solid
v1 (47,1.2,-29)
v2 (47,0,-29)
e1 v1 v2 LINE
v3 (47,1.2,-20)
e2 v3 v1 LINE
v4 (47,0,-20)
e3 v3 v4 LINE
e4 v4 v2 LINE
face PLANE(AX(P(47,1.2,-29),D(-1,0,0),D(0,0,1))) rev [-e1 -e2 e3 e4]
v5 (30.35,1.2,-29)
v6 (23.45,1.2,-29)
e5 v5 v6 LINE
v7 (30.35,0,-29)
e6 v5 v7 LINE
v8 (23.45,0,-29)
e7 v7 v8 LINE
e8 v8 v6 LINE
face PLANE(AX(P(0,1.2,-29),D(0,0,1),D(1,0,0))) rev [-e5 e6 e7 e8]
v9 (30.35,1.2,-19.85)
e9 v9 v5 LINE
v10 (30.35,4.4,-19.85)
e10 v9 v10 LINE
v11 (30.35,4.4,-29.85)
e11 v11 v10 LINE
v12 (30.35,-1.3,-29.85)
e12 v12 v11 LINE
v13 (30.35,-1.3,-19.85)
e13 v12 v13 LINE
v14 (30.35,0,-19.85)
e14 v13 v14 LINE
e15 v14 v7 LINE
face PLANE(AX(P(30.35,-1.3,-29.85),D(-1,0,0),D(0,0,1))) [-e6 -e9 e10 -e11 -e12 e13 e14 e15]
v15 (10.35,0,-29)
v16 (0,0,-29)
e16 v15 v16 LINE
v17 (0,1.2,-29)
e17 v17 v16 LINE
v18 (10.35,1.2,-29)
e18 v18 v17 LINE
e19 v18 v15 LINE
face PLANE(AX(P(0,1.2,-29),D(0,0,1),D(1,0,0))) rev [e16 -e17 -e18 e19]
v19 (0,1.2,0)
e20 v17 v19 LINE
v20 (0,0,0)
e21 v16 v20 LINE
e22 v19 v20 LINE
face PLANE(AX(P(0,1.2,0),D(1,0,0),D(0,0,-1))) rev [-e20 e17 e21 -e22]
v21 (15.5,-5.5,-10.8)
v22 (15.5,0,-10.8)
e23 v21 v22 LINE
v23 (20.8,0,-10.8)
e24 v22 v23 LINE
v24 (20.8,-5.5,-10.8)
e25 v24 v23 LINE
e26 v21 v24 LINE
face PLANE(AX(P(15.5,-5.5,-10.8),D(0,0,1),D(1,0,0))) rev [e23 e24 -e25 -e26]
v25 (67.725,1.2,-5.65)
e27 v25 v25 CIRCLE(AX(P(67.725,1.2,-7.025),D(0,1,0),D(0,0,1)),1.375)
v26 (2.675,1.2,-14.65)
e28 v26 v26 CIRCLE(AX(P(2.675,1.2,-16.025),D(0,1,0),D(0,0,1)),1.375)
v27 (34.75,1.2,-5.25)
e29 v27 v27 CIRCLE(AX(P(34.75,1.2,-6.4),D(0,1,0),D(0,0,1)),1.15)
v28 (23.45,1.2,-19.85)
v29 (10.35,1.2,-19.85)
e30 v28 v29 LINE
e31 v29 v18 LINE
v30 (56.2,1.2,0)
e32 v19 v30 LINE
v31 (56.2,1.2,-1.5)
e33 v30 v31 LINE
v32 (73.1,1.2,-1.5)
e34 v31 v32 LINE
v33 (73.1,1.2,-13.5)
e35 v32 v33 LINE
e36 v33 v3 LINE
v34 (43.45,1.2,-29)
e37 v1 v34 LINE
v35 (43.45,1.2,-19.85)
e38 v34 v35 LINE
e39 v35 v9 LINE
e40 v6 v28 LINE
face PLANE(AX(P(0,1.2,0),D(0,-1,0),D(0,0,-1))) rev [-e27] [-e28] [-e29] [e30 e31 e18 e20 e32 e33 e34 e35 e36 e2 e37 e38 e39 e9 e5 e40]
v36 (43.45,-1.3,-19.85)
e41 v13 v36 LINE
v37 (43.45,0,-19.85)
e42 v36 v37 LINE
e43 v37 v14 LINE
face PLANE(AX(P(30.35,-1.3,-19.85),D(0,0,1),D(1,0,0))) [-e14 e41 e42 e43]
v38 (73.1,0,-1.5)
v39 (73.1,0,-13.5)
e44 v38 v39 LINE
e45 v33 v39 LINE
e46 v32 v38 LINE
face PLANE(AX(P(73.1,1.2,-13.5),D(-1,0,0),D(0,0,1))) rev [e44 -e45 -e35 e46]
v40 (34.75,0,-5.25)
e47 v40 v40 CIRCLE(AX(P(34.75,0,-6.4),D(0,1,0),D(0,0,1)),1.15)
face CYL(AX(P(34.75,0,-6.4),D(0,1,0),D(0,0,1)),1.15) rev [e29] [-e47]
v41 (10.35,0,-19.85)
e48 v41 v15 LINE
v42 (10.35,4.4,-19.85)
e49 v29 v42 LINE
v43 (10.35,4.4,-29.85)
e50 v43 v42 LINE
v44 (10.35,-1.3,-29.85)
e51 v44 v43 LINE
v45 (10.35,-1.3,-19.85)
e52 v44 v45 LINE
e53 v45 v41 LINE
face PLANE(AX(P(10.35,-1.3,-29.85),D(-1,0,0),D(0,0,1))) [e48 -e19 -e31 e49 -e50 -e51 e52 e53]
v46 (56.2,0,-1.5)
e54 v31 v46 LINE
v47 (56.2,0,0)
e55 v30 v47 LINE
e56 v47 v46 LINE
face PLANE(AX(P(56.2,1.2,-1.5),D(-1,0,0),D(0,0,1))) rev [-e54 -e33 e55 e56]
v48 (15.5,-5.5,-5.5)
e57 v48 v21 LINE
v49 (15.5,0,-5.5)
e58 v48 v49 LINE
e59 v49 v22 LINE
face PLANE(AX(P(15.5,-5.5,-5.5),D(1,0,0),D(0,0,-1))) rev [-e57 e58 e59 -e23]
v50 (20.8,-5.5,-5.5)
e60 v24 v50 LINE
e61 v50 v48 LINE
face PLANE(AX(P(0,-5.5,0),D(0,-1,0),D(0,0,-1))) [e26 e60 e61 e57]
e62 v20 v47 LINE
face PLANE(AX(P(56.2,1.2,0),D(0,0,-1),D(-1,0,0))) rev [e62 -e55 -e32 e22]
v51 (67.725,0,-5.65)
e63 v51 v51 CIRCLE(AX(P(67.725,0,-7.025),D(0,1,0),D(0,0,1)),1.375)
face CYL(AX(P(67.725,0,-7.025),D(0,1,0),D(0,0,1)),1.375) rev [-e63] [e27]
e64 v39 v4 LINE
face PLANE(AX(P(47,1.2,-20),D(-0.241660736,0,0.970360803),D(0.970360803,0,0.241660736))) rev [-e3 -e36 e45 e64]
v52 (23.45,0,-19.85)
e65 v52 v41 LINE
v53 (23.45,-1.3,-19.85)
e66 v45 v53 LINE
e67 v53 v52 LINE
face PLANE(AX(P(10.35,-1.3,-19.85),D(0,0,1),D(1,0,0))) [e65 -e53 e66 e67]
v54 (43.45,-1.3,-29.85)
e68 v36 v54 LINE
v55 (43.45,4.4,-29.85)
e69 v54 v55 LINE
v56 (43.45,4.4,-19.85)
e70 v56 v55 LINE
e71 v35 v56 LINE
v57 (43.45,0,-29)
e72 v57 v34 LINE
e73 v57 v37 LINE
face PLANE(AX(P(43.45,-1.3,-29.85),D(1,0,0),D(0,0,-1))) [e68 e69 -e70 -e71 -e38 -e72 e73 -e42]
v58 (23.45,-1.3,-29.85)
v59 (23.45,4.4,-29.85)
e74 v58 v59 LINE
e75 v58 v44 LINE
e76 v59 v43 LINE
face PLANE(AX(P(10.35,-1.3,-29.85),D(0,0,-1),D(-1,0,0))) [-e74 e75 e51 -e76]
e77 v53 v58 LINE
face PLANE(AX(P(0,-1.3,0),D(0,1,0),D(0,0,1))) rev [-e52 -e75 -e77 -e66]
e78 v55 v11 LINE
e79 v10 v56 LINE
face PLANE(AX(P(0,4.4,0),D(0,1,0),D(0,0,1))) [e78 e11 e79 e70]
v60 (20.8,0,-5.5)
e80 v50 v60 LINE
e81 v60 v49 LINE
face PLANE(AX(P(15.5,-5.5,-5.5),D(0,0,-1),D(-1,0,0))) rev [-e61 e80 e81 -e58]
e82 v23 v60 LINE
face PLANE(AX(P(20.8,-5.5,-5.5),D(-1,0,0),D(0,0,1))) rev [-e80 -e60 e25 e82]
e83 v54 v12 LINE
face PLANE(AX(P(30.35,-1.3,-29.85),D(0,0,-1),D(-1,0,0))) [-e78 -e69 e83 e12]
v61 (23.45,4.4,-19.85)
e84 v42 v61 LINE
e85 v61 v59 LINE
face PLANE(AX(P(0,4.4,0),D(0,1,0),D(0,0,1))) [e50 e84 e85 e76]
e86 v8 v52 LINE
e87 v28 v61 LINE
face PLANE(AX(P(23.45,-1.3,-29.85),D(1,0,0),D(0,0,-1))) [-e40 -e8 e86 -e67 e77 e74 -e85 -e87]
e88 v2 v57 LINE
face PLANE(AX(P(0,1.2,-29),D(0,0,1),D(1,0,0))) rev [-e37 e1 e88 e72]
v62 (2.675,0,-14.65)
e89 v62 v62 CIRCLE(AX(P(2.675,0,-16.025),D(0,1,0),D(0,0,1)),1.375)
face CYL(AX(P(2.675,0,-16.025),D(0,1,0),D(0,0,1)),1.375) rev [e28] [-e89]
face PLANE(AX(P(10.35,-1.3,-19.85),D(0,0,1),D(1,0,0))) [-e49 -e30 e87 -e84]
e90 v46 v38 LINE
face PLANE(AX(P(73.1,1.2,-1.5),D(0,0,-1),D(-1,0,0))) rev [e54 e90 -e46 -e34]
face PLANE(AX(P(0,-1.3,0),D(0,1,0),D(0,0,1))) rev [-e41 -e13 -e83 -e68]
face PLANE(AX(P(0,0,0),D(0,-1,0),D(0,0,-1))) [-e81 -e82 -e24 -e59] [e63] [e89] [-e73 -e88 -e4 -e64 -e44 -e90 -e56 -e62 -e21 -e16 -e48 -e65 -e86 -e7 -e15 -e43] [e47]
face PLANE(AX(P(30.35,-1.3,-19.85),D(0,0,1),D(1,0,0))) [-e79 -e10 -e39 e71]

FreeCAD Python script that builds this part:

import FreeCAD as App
import Part
import Sketcher
from FreeCAD import Vector
Q = App.Units.Quantity

doc = App.newDocument("Part")
params = doc.addObject("Spreadsheet::Sheet", "Params")
for row, (alias, value) in enumerate([
    ("sketch1_width", "47 mm"),
    ("sketch1_height", "29 mm"),
    ("sketch1_height2", "12 mm"),
    ("sketch1_height3", "9 mm"),
    ("sketch1_width2", "56.2 mm"),
    ("pad1_length", "1.2 mm"),
    ("sketch2_diameter", "2.3 mm"),
    ("sketch2_diameter2", "2.75 mm"),
    ("sketch3_height", "10 mm"),
    ("sketch3_width", "13.1 mm"),
    ("pad2_length", "3.2 mm"),
    ("pad2_length2", "2.5 mm"),
    ("sketch4_width", "5.3 mm"),
    ("pad3_length", "5.5 mm"),
], start=1):
    params.set(f"A{row}", alias)
    params.set(f"B{row}", "=" + value)
    params.setAlias(f"B{row}", alias)

body = doc.addObject("PartDesign::Body", "Body")

# Sketch on XZ plane
sketch1 = body.newObject("Sketcher::SketchObject", "Sketch")
sketch1.AttachmentSupport = (doc.getObject("XZ_Plane"), [""])
sketch1.MapMode = "FlatFace"
sketch1.addGeometry(Part.LineSegment(Vector(0, -29, 0), Vector(0, 0, 0)), False)
sketch1.addGeometry(Part.LineSegment(Vector(0, 0, 0), Vector(56.2, 0, 0)), False)
sketch1.addGeometry(Part.LineSegment(Vector(56.2, 0, 0), Vector(56.2, -1.5, 0)), False)
sketch1.addGeometry(Part.LineSegment(Vector(56.2, -1.5, 0), Vector(73.1, -1.5, 0)), False)
sketch1.addGeometry(Part.LineSegment(Vector(73.1, -1.5, 0), Vector(73.1, -13.5, 0)), False)
sketch1.addGeometry(Part.LineSegment(Vector(73.1, -13.5, 0), Vector(47, -20, 0)), False)
sketch1.addGeometry(Part.LineSegment(Vector(47, -20, 0), Vector(47, -29, 0)), False)
sketch1.addGeometry(Part.LineSegment(Vector(47, -29, 0), Vector(0, -29, 0)), False)
sketch1.addConstraint(Sketcher.Constraint("Coincident", 0, 2, 1, 1))
sketch1.addConstraint(Sketcher.Constraint("Coincident", 1, 2, 2, 1))
sketch1.addConstraint(Sketcher.Constraint("Coincident", 2, 2, 3, 1))
sketch1.addConstraint(Sketcher.Constraint("Coincident", 3, 2, 4, 1))
sketch1.addConstraint(Sketcher.Constraint("Coincident", 4, 2, 5, 1))
sketch1.addConstraint(Sketcher.Constraint("Coincident", 5, 2, 6, 1))
sketch1.addConstraint(Sketcher.Constraint("Coincident", 6, 2, 7, 1))
sketch1.addConstraint(Sketcher.Constraint("Coincident", 7, 2, 0, 1))
sketch1.addConstraint(Sketcher.Constraint("Vertical", 0))
sketch1.addConstraint(Sketcher.Constraint("Horizontal", 1))
sketch1.addConstraint(Sketcher.Constraint("Vertical", 2))
sketch1.addConstraint(Sketcher.Constraint("Horizontal", 3))
sketch1.addConstraint(Sketcher.Constraint("Vertical", 4))
sketch1.addConstraint(Sketcher.Constraint("Vertical", 6))
sketch1.addConstraint(Sketcher.Constraint("Horizontal", 7))
sketch1.addConstraint(Sketcher.Constraint("Coincident", 0, 2, -1, 1))
sketch1.addConstraint(Sketcher.Constraint("DistanceX", 7, 2, 7, 1, Q("47 mm")))
sketch1.addConstraint(Sketcher.Constraint("DistanceY", 0, 1, 0, 2, Q("29 mm")))
sketch1.addConstraint(Sketcher.Constraint("DistanceY", 4, 2, 4, 1, Q("12 mm")))
sketch1.addConstraint(Sketcher.Constraint("DistanceY", 6, 2, 6, 1, Q("9 mm")))
sketch1.addConstraint(Sketcher.Constraint("DistanceX", 1, 1, 1, 2, Q("56.2 mm")))
sketch1.addConstraint(Sketcher.Constraint("DistanceX", 3, 1, 3, 2, Q("16.9 mm")))
sketch1.addConstraint(Sketcher.Constraint("DistanceY", 2, 2, 2, 1, Q("1.5 mm")))
sketch1.setExpression("Constraints[16]", "Params.sketch1_width")
sketch1.setExpression("Constraints[17]", "Params.sketch1_height")
sketch1.setExpression("Constraints[18]", "Params.sketch1_height2")
sketch1.setExpression("Constraints[19]", "Params.sketch1_height3")
sketch1.setExpression("Constraints[20]", "Params.sketch1_width2")
pad1 = body.newObject("PartDesign::Pad", "Pad")
pad1.Profile = sketch1
pad1.setExpression("Length", "Params.pad1_length")
pad1.Reversed = True

# Sketch on XZ plane
sketch2 = body.newObject("Sketcher::SketchObject", "Sketch001")
sketch2.AttachmentSupport = (doc.getObject("XZ_Plane"), [""])
sketch2.MapMode = "FlatFace"
sketch2.AttachmentOffset = App.Placement(Vector(0, 0, -1.2), App.Rotation())
sketch2.addGeometry(Part.Circle(Vector(2.7, -16, 0), Vector(0, 0, 1), 1.4), False)
sketch2.addGeometry(Part.Circle(Vector(67.7, -7, 0), Vector(0, 0, 1), 1.4), False)
sketch2.addGeometry(Part.Circle(Vector(34.8, -6.4, 0), Vector(0, 0, 1), 1.1), False)
sketch2.addConstraint(Sketcher.Constraint("Equal", 0, 1))
sketch2.addConstraint(Sketcher.Constraint("Diameter", 2, Q("2.3 mm")))
sketch2.addConstraint(Sketcher.Constraint("Diameter", 0, Q("2.75 mm")))
sketch2.addConstraint(Sketcher.Constraint("DistanceY", 0, 3, 1, 3, Q("9 mm")))
sketch2.addConstraint(Sketcher.Constraint("DistanceY", 2, 3, -1, 1, Q("6.4 mm")))
sketch2.addConstraint(Sketcher.Constraint("DistanceX", -1, 1, 2, 3, Q("34.75 mm")))
sketch2.addConstraint(Sketcher.Constraint("DistanceX", 0, 3, 1, 3, Q("65.05 mm")))
sketch2.addConstraint(Sketcher.Constraint("DistanceX", -1, 1, 0, 3, Q("2.675 mm")))
sketch2.addConstraint(Sketcher.Constraint("DistanceY", 0, 3, -1, 1, Q("16.025 mm")))
sketch2.setExpression("Constraints[1]", "Params.sketch2_diameter")
sketch2.setExpression("Constraints[2]", "Params.sketch2_diameter2")
pocket1 = body.newObject("PartDesign::Pocket", "Pocket")
pocket1.Profile = sketch2
pocket1.Type = "ThroughAll"
pocket1.Reversed = True

# Sketch on XZ plane
sketch3 = body.newObject("Sketcher::SketchObject", "Sketch002")
sketch3.AttachmentSupport = (doc.getObject("XZ_Plane"), [""])
sketch3.MapMode = "FlatFace"
sketch3.AttachmentOffset = App.Placement(Vector(0, 0, -1.2), App.Rotation())
sketch3.addGeometry(Part.LineSegment(Vector(10, -30, 0), Vector(10, -20, 0)), False)
sketch3.addGeometry(Part.LineSegment(Vector(10, -20, 0), Vector(23, -20, 0)), False)
sketch3.addGeometry(Part.LineSegment(Vector(23, -20, 0), Vector(23, -30, 0)), False)
sketch3.addGeometry(Part.LineSegment(Vector(23, -30, 0), Vector(10, -30, 0)), False)
sketch3.addGeometry(Part.LineSegment(Vector(30, -30, 0), Vector(30, -20, 0)), False)
sketch3.addGeometry(Part.LineSegment(Vector(30, -20, 0), Vector(43, -20, 0)), False)
sketch3.addGeometry(Part.LineSegment(Vector(43, -20, 0), Vector(43, -30, 0)), False)
sketch3.addGeometry(Part.LineSegment(Vector(43, -30, 0), Vector(30, -30, 0)), False)
sketch3.addConstraint(Sketcher.Constraint("Coincident", 0, 2, 1, 1))
sketch3.addConstraint(Sketcher.Constraint("Coincident", 1, 2, 2, 1))
sketch3.addConstraint(Sketcher.Constraint("Coincident", 2, 2, 3, 1))
sketch3.addConstraint(Sketcher.Constraint("Coincident", 3, 2, 0, 1))
sketch3.addConstraint(Sketcher.Constraint("Coincident", 4, 2, 5, 1))
sketch3.addConstraint(Sketcher.Constraint("Coincident", 5, 2, 6, 1))
sketch3.addConstraint(Sketcher.Constraint("Coincident", 6, 2, 7, 1))
sketch3.addConstraint(Sketcher.Constraint("Coincident", 7, 2, 4, 1))
sketch3.addConstraint(Sketcher.Constraint("Vertical", 0))
sketch3.addConstraint(Sketcher.Constraint("Horizontal", 1))
sketch3.addConstraint(Sketcher.Constraint("Vertical", 2))
sketch3.addConstraint(Sketcher.Constraint("Horizontal", 3))
sketch3.addConstraint(Sketcher.Constraint("Vertical", 4))
sketch3.addConstraint(Sketcher.Constraint("Horizontal", 5))
sketch3.addConstraint(Sketcher.Constraint("Vertical", 6))
sketch3.addConstraint(Sketcher.Constraint("Horizontal", 7))
sketch3.addConstraint(Sketcher.Constraint("Horizontal", 1, 2, 4, 2))
sketch3.addConstraint(Sketcher.Constraint("Horizontal", 3, 2, 6, 2))
sketch3.addConstraint(Sketcher.Constraint("Equal", 3, 5))
sketch3.addConstraint(Sketcher.Constraint("DistanceY", 0, 1, 0, 2, Q("10 mm")))
sketch3.addConstraint(Sketcher.Constraint("DistanceX", 1, 1, 1, 2, Q("13.1 mm")))
sketch3.addConstraint(Sketcher.Constraint("DistanceX", 0, 2, 4, 2, Q("20 mm")))
sketch3.addConstraint(Sketcher.Constraint("DistanceX", -1, 1, 0, 2, Q("10.35 mm")))
sketch3.addConstraint(Sketcher.Constraint("DistanceY", 0, 2, -1, 1, Q("19.85 mm")))
sketch3.setExpression("Constraints[19]", "Params.sketch3_height")
sketch3.setExpression("Constraints[20]", "Params.sketch3_width")
pad2 = body.newObject("PartDesign::Pad", "Pad001")
pad2.Profile = sketch3
pad2.Type = "TwoLengths"
pad2.setExpression("Length", "Params.pad2_length")
pad2.setExpression("Length2", "Params.pad2_length2")
pad2.Reversed = True

# Sketch on XZ plane
sketch4 = body.newObject("Sketcher::SketchObject", "Sketch003")
sketch4.AttachmentSupport = (doc.getObject("XZ_Plane"), [""])
sketch4.MapMode = "FlatFace"
sketch4.addGeometry(Part.LineSegment(Vector(16, -6, 0), Vector(16, -11, 0)), False)
sketch4.addGeometry(Part.LineSegment(Vector(16, -11, 0), Vector(21, -11, 0)), False)
sketch4.addGeometry(Part.LineSegment(Vector(21, -11, 0), Vector(21, -6, 0)), False)
sketch4.addGeometry(Part.LineSegment(Vector(21, -6, 0), Vector(16, -6, 0)), False)
sketch4.addConstraint(Sketcher.Constraint("Coincident", 0, 2, 1, 1))
sketch4.addConstraint(Sketcher.Constraint("Coincident", 1, 2, 2, 1))
sketch4.addConstraint(Sketcher.Constraint("Coincident", 2, 2, 3, 1))
sketch4.addConstraint(Sketcher.Constraint("Coincident", 3, 2, 0, 1))
sketch4.addConstraint(Sketcher.Constraint("Vertical", 0))
sketch4.addConstraint(Sketcher.Constraint("Horizontal", 1))
sketch4.addConstraint(Sketcher.Constraint("Vertical", 2))
sketch4.addConstraint(Sketcher.Constraint("Horizontal", 3))
sketch4.addConstraint(Sketcher.Constraint("Equal", 3, 0))
sketch4.addConstraint(Sketcher.Constraint("DistanceX", 1, 1, 1, 2, Q("5.3 mm")))
sketch4.addConstraint(Sketcher.Constraint("DistanceX", -1, 1, 0, 2, Q("15.5 mm")))
sketch4.addConstraint(Sketcher.Constraint("DistanceY", 0, 2, -1, 1, Q("10.8 mm")))
sketch4.setExpression("Constraints[9]", "Params.sketch4_width")
pad3 = body.newObject("PartDesign::Pad", "Pad002")
pad3.Profile = sketch4
pad3.setExpression("Length", "Params.pad3_length")

doc.recompute()
